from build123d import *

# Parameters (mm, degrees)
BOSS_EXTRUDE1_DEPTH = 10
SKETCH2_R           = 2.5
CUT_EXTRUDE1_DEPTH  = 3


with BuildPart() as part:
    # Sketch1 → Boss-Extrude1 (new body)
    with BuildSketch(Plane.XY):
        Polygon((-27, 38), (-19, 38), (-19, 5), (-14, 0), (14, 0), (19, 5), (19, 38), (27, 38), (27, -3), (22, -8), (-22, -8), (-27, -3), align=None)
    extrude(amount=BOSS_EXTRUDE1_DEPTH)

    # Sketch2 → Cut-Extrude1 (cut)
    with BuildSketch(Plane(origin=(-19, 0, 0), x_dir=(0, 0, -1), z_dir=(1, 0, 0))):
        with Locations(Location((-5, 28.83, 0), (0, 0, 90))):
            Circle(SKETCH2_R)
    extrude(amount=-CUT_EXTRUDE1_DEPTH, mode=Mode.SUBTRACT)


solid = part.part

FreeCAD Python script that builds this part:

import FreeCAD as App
import Part
import Sketcher
from FreeCAD import Vector


def add_polygon(sketch, points):
    """Adds a closed chain of lines whose ends are joined by coincident constraints."""
    first, n = sketch.GeometryCount, len(points)
    for a, b in zip(points, points[1:] + points[:1]):
        sketch.addGeometry(Part.LineSegment(App.Vector(*a, 0), App.Vector(*b, 0)), False)
    for i in range(n):
        sketch.addConstraint(Sketcher.Constraint("Coincident", first + i, 2, first + (i + 1) % n, 1))

doc = App.newDocument("Part")
params = doc.addObject("Spreadsheet::Sheet", "Params")
for row, (alias, value) in enumerate([
    ("sketch1_width", "8 mm"),
    ("sketch1_width2", "44 mm"),
    ("sketch1_height", "41 mm"),
    ("sketch1_height2", "33 mm"),
    ("pad1_length", "10 mm"),
    ("sketch2_diameter", "5 mm"),
    ("pocket1_length", "3 mm"),
], start=1):
    params.set(f"A{row}", alias)
    params.set(f"B{row}", "=" + value)
    params.setAlias(f"B{row}", alias)

body = doc.addObject("PartDesign::Body", "Body")

# Sketch on XY plane
sketch1 = body.newObject("Sketcher::SketchObject", "Sketch")
sketch1.AttachmentSupport = (doc.getObject("XY_Plane"), [""])
sketch1.MapMode = "FlatFace"
add_polygon(sketch1, [(-19, 38), (-27, 38), (-27, -3), (-22, -8), (22, -8), (27, -3), (27, 38), (19, 38), (19, 5), (14, 0), (-14, 0), (-19, 5)])  # lines 0-11
sketch1.addConstraint([
    Sketcher.Constraint("Horizontal", 0),
    Sketcher.Constraint("Vertical", 1),
    Sketcher.Constraint("Horizontal", 3),
    Sketcher.Constraint("Vertical", 5),
    Sketcher.Constraint("Horizontal", 6),
    Sketcher.Constraint("Vertical", 7),
    Sketcher.Constraint("Horizontal", 9),
    Sketcher.Constraint("Vertical", 11),
    Sketcher.Constraint("Symmetric", 8, 2, 9, 2, -1, 1),
    Sketcher.Constraint("Symmetric", 1, 2, 4, 2, -2),
    Sketcher.Constraint("Symmetric", 7, 2, 10, 2, -2),
    Sketcher.Constraint("Perpendicular", 2, 4),
    Sketcher.Constraint("Parallel", 4, 8),
    Sketcher.Constraint("Perpendicular", 8, 10),
    Sketcher.Constraint("Horizontal", 0, 2, 5, 2),
    Sketcher.Constraint("Equal", 4, 8),
    Sketcher.Constraint("DistanceX", 0, 2, 0, 1, 8.0),
    Sketcher.Constraint("DistanceX", 3, 1, 3, 2, 44.0),
    Sketcher.Constraint("DistanceY", 1, 2, 1, 1, 41.0),
    Sketcher.Constraint("DistanceY", 7, 2, 7, 1, 33.0),
    Sketcher.Constraint("DistanceX", 0, 2, -1, 1, 27.0),
])
sketch1.setExpression("Constraints[28]", "Params.sketch1_width")
sketch1.setExpression("Constraints[29]", "Params.sketch1_width2")
sketch1.setExpression("Constraints[30]", "Params.sketch1_height")
sketch1.setExpression("Constraints[31]", "Params.sketch1_height2")
pad1 = body.newObject("PartDesign::Pad", "Pad")
pad1.Profile = sketch1
pad1.setExpression("Length", "Params.pad1_length")

# Sketch on YZ plane
sketch2 = body.newObject("Sketcher::SketchObject", "Sketch001")
sketch2.AttachmentSupport = (doc.getObject("YZ_Plane"), [""])
sketch2.MapMode = "FlatFace"
sketch2.AttachmentOffset = App.Placement(Vector(0, 0, -19), App.Rotation())
sketch2.addGeometry(Part.Circle(Vector(28.8, 5, 0), Vector(0, 0, 1), 2.5), False)
sketch2.addConstraint([
    Sketcher.Constraint("Diameter", 0, 5.0),
    Sketcher.Constraint("DistanceY", -1, 1, 0, 3, 5.0),
    Sketcher.Constraint("DistanceX", -1, 1, 0, 3, 28.83),
])
sketch2.setExpression("Constraints[0]", "Params.sketch2_diameter")
pocket1 = body.newObject("PartDesign::Pocket", "Pocket")
pocket1.Profile = sketch2
pocket1.setExpression("Length", "Params.pocket1_length")

doc.recompute()
